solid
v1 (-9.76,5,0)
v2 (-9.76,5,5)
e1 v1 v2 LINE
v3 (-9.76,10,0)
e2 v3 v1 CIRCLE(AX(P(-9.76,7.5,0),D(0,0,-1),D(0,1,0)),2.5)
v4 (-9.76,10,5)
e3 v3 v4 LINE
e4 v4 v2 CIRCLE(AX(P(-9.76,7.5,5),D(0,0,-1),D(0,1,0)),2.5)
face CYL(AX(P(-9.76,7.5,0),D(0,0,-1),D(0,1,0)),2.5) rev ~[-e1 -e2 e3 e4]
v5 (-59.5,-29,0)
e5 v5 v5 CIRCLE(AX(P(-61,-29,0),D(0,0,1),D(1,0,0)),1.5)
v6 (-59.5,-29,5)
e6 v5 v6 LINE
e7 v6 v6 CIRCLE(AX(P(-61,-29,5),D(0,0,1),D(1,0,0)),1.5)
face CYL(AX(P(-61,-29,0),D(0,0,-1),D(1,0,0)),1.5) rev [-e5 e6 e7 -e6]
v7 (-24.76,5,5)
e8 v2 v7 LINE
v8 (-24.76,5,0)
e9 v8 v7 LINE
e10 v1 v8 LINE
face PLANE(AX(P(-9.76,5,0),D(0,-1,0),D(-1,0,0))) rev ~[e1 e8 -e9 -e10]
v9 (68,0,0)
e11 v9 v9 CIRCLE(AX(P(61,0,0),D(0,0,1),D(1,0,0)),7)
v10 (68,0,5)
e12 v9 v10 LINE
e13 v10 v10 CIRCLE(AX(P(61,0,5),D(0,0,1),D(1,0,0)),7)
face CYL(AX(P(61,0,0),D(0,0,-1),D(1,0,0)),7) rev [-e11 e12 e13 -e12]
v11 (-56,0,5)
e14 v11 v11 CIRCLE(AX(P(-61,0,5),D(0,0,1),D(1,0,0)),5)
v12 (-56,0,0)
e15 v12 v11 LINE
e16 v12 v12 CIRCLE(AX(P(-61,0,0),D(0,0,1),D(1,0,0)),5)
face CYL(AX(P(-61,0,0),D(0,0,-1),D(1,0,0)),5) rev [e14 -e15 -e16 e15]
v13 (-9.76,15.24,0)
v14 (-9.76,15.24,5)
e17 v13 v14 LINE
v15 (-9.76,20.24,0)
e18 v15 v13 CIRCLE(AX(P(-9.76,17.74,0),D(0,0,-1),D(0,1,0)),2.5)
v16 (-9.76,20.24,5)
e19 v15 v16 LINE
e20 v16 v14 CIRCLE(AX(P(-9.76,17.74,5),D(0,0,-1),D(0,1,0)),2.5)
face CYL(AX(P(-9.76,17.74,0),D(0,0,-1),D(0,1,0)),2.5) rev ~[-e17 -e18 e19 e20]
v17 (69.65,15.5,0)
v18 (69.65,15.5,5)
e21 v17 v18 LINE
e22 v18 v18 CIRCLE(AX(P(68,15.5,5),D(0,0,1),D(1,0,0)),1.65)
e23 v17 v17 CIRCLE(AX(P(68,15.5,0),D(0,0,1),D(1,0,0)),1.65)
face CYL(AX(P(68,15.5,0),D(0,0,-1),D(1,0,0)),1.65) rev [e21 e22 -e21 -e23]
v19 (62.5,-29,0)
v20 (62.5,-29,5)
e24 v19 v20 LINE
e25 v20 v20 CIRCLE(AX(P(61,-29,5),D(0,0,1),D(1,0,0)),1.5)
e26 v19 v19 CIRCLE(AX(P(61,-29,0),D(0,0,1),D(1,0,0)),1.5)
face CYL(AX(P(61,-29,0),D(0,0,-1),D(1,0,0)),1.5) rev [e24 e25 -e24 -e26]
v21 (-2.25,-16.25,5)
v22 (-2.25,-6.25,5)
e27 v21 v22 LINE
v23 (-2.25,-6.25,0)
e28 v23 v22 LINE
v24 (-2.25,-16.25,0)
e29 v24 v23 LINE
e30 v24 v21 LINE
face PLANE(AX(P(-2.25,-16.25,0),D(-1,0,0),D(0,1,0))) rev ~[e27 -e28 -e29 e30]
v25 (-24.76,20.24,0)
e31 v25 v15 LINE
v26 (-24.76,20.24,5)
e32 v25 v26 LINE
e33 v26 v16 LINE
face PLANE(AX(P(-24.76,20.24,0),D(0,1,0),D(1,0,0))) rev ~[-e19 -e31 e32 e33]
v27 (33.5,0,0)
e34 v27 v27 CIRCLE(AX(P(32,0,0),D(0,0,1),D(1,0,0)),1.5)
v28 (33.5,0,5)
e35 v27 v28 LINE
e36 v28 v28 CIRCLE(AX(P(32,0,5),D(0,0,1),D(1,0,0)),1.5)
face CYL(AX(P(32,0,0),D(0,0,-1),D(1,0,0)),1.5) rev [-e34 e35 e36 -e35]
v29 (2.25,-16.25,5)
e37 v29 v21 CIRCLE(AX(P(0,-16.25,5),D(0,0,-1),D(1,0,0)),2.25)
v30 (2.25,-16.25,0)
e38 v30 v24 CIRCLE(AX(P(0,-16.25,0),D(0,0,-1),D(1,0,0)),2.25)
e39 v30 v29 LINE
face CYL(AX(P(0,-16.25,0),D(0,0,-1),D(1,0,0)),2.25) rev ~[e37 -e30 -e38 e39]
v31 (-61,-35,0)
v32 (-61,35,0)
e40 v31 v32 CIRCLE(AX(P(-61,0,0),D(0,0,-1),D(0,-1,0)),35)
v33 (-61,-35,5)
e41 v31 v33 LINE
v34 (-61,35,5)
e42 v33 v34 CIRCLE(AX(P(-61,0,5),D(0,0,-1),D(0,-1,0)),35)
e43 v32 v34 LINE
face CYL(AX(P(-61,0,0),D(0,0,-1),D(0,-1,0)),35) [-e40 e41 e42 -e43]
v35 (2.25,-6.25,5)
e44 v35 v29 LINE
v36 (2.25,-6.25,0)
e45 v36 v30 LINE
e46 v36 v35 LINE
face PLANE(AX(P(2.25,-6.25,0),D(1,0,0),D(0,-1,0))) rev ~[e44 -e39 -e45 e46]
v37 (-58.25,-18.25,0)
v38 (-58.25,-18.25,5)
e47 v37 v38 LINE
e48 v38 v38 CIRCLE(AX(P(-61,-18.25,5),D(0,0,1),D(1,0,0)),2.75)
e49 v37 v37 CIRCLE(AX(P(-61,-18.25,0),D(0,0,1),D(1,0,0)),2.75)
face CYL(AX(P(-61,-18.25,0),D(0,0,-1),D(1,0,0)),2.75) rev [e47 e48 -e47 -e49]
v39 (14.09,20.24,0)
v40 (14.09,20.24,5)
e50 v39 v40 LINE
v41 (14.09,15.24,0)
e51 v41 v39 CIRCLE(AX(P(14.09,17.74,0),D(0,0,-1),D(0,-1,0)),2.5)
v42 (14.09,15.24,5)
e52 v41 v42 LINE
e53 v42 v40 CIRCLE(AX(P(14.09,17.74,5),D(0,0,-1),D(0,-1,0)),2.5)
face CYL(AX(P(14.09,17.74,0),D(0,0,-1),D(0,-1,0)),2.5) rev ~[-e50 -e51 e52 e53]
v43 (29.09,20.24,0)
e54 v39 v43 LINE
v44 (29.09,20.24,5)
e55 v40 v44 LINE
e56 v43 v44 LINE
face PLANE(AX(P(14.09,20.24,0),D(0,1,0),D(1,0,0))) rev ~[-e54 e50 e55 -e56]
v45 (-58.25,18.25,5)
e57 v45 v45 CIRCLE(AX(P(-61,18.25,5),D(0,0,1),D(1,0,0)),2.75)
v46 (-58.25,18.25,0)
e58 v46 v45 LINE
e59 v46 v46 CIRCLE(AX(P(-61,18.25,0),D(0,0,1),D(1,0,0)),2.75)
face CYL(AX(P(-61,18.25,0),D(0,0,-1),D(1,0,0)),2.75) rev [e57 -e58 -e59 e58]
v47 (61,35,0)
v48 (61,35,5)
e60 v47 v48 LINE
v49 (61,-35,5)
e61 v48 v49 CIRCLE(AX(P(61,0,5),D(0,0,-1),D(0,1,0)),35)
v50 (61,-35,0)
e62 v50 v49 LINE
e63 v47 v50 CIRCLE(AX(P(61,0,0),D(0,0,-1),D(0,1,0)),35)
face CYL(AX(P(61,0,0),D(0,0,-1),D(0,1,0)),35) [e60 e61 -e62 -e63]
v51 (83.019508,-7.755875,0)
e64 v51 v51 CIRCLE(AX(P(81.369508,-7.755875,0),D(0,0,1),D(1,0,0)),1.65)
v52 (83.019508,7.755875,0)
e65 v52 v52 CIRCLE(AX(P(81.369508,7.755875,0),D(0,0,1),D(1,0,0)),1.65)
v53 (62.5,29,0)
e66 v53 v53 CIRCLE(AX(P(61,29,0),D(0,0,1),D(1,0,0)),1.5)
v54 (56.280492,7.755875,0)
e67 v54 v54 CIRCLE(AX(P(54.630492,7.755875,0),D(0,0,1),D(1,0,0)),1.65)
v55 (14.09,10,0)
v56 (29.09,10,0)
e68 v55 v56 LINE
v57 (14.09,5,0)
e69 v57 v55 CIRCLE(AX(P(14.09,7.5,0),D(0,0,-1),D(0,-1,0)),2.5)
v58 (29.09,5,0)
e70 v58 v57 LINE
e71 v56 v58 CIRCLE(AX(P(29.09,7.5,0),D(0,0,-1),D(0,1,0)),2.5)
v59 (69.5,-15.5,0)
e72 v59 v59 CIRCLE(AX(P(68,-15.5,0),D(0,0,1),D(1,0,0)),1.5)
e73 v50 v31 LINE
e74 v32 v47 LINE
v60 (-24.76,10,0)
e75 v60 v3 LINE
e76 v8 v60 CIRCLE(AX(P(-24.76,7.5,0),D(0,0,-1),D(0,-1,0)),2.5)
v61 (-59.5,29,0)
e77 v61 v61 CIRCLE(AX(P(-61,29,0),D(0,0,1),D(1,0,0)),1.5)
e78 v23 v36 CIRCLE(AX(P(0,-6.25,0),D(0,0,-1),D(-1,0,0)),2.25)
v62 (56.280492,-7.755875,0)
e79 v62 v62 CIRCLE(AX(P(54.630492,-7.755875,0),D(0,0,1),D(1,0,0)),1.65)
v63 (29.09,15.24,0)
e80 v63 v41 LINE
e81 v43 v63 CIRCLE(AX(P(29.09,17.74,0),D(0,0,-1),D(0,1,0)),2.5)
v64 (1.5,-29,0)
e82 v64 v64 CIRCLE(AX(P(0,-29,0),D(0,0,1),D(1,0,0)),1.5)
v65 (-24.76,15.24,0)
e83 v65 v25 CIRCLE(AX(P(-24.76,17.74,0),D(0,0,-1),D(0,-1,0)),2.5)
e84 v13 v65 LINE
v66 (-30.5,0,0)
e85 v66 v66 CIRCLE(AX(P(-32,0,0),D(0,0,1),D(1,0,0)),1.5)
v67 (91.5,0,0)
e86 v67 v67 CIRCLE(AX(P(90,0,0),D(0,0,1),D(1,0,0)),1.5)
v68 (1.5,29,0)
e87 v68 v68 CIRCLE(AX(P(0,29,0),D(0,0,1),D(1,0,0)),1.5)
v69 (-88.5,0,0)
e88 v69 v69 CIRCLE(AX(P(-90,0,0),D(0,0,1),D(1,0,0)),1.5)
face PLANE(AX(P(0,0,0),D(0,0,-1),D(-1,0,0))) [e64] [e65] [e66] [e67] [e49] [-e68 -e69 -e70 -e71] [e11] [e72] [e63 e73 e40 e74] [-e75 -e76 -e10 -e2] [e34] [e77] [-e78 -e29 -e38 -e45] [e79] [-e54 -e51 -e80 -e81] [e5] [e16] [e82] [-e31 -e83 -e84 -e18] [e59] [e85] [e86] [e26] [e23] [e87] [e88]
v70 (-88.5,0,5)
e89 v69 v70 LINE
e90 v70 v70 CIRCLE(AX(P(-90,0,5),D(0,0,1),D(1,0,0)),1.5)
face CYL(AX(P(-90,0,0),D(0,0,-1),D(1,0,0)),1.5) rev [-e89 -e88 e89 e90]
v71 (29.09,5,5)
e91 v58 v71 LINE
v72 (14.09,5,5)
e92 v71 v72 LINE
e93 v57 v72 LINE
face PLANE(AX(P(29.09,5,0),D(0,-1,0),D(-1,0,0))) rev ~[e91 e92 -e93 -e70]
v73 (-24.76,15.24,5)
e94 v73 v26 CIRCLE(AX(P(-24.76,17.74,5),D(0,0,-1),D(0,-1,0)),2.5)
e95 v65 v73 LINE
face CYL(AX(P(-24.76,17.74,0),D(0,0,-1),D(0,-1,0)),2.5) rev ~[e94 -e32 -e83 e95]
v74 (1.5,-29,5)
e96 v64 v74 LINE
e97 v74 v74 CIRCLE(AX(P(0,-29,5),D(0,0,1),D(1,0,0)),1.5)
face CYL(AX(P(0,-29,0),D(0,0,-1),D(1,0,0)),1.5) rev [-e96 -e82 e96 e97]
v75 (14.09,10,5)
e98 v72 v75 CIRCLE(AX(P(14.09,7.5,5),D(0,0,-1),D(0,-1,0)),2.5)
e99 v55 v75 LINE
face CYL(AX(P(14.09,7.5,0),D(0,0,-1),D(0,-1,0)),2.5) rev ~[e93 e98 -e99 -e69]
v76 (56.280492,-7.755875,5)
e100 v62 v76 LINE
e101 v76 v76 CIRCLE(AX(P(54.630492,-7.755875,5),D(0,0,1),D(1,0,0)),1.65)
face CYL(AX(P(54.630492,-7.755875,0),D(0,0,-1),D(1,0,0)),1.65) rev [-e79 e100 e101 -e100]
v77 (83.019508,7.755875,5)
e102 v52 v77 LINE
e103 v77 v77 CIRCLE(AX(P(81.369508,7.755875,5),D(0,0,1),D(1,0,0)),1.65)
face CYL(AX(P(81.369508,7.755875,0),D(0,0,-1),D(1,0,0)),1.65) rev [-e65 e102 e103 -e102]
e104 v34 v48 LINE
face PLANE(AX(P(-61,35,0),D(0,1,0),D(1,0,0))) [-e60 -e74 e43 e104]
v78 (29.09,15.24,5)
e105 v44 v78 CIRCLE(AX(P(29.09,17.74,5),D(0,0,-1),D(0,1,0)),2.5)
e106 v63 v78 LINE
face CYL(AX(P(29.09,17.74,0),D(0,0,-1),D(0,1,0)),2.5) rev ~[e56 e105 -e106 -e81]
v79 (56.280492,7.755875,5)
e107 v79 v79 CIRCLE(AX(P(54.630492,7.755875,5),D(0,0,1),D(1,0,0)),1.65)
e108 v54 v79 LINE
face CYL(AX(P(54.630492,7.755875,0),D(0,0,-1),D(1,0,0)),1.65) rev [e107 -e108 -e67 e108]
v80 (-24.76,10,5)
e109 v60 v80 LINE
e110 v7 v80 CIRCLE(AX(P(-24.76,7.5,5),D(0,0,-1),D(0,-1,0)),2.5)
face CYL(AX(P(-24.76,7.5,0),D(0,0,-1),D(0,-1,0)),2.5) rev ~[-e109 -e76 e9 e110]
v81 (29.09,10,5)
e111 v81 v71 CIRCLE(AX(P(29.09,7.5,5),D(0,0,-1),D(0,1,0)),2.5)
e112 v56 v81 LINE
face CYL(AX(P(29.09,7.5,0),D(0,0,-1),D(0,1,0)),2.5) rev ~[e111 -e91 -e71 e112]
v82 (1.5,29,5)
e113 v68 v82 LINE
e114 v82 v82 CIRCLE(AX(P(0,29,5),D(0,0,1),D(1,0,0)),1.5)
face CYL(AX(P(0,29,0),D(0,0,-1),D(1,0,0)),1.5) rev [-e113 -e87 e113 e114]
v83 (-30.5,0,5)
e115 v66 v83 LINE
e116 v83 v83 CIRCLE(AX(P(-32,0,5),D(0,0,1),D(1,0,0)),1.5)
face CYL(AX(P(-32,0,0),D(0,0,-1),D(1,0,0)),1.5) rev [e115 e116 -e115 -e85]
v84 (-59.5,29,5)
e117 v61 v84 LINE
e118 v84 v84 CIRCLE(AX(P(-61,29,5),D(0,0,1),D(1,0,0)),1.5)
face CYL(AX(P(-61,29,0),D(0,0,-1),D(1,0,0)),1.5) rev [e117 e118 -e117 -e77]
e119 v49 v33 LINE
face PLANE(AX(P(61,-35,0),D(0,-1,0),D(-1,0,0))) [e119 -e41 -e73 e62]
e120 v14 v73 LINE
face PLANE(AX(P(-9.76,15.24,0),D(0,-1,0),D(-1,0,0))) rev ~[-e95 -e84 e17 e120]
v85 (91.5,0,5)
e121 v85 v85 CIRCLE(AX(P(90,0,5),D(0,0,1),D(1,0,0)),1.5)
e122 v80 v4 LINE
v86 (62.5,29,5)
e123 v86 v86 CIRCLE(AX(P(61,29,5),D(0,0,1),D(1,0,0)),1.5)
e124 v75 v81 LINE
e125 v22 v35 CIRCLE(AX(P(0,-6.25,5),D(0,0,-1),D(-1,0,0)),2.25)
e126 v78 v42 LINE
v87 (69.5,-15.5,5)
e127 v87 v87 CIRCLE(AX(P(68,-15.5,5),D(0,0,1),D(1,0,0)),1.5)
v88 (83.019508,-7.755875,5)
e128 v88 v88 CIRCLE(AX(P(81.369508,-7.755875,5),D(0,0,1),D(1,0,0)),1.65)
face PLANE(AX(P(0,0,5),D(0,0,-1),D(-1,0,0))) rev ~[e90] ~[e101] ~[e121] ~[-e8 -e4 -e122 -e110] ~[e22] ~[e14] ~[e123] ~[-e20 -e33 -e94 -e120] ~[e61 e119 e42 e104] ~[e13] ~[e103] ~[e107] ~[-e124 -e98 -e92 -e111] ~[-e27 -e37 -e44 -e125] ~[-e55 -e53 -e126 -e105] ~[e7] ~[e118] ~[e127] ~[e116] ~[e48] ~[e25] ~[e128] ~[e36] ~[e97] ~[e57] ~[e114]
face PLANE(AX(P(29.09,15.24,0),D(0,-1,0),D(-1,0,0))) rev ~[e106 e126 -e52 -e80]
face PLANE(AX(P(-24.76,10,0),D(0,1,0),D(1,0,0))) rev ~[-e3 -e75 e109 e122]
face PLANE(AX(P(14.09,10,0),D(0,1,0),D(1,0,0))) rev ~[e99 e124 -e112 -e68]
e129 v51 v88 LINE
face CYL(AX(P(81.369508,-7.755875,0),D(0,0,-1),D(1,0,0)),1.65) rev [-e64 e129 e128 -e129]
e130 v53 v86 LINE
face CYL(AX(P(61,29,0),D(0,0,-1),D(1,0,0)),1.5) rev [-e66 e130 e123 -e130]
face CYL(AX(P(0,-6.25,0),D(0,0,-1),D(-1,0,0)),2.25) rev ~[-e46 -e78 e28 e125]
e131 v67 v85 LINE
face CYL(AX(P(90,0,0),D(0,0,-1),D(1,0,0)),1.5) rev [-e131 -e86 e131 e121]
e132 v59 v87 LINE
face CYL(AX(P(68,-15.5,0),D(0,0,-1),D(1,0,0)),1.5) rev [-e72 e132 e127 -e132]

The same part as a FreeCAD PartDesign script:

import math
import FreeCAD as App
import Part
import Sketcher
from FreeCAD import Vector

doc = App.newDocument("Part")
body = doc.addObject("PartDesign::Body", "Body")

# Sketch on XY plane
sketch1 = body.newObject("Sketcher::SketchObject", "Sketch")
sketch1.AttachmentSupport = (doc.getObject("XY_Plane"), [""])
sketch1.MapMode = "FlatFace"
sketch1.addGeometry([
    Part.LineSegment(Vector(-61, -35, 0), Vector(61, -35, 0)),  # 0
    Part.ArcOfCircle(Part.Circle(Vector(61, 0, 0), Vector(0, 0, 1), 35), math.radians(-90), math.radians(90)),  # 1
    Part.LineSegment(Vector(61, 35, 0), Vector(-61, 35, 0)),  # 2
    Part.ArcOfCircle(Part.Circle(Vector(-61, 0, 0), Vector(0, 0, 1), 35), math.radians(90), math.radians(270)),  # 3
    Part.Circle(Vector(61, -29, 0), Vector(0, 0, 1), 1.5),  # 4
    Part.Circle(Vector(68, -15.5, 0), Vector(0, 0, 1), 1.5),  # 5
    Part.Circle(Vector(81.4, -7.8, 0), Vector(0, 0, 1), 1.6),  # 6
    Part.Circle(Vector(54.6, -7.8, 0), Vector(0, 0, 1), 1.6),  # 7
    Part.Circle(Vector(0, -29, 0), Vector(0, 0, 1), 1.5),  # 8
    Part.Circle(Vector(-61, -29, 0), Vector(0, 0, 1), 1.5),  # 9
    Part.Circle(Vector(-61, -18.2, 0), Vector(0, 0, 1), 2.8),  # 10
    Part.LineSegment(Vector(2.2, -6.2, 0), Vector(2.2, -16.2, 0)),  # 11
    Part.ArcOfCircle(Part.Circle(Vector(0, -16.2, 0), Vector(0, 0, 1), 2.2), math.radians(180), math.radians(360)),  # 12
    Part.LineSegment(Vector(-2.2, -16.2, 0), Vector(-2.2, -6.2, 0)),  # 13
    Part.ArcOfCircle(Part.Circle(Vector(0, -6.2, 0), Vector(0, 0, 1), 2.2), math.radians(0), math.radians(180)),  # 14
    Part.Circle(Vector(90, 0, 0), Vector(0, 0, 1), 1.5),  # 15
    Part.Circle(Vector(61, 0, 0), Vector(0, 0, 1), 7),  # 16
    Part.Circle(Vector(81.4, 7.8, 0), Vector(0, 0, 1), 1.6),  # 17
    Part.Circle(Vector(54.6, 7.8, 0), Vector(0, 0, 1), 1.6),  # 18
    Part.Circle(Vector(32, 0, 0), Vector(0, 0, 1), 1.5),  # 19
    Part.LineSegment(Vector(14.1, 10, 0), Vector(29.1, 10, 0)),  # 20
    Part.ArcOfCircle(Part.Circle(Vector(29.1, 7.5, 0), Vector(0, 0, 1), 2.5), math.radians(-90), math.radians(90)),  # 21
    Part.LineSegment(Vector(29.1, 5, 0), Vector(14.1, 5, 0)),  # 22
    Part.ArcOfCircle(Part.Circle(Vector(14.1, 7.5, 0), Vector(0, 0, 1), 2.5), math.radians(90), math.radians(270)),  # 23
    Part.Circle(Vector(68, 15.5, 0), Vector(0, 0, 1), 1.6),  # 24
    Part.Circle(Vector(61, 29, 0), Vector(0, 0, 1), 1.5),  # 25
    Part.LineSegment(Vector(14.1, 20.2, 0), Vector(29.1, 20.2, 0)),  # 26
    Part.ArcOfCircle(Part.Circle(Vector(29.1, 17.7, 0), Vector(0, 0, 1), 2.5), math.radians(-90), math.radians(90)),  # 27
    Part.LineSegment(Vector(29.1, 15.2, 0), Vector(14.1, 15.2, 0)),  # 28
    Part.ArcOfCircle(Part.Circle(Vector(14.1, 17.7, 0), Vector(0, 0, 1), 2.5), math.radians(90), math.radians(270)),  # 29
    Part.LineSegment(Vector(-24.8, 10, 0), Vector(-9.8, 10, 0)),  # 30
    Part.ArcOfCircle(Part.Circle(Vector(-9.8, 7.5, 0), Vector(0, 0, 1), 2.5), math.radians(-90), math.radians(90)),  # 31
    Part.LineSegment(Vector(-9.8, 5, 0), Vector(-24.8, 5, 0)),  # 32
    Part.ArcOfCircle(Part.Circle(Vector(-24.8, 7.5, 0), Vector(0, 0, 1), 2.5), math.radians(90), math.radians(270)),  # 33
    Part.Circle(Vector(-32, 0, 0), Vector(0, 0, 1), 1.5),  # 34
    Part.Circle(Vector(-61, 0, 0), Vector(0, 0, 1), 5),  # 35
    Part.Circle(Vector(-90, 0, 0), Vector(0, 0, 1), 1.5),  # 36
    Part.LineSegment(Vector(-24.8, 20.2, 0), Vector(-9.8, 20.2, 0)),  # 37
    Part.ArcOfCircle(Part.Circle(Vector(-9.8, 17.7, 0), Vector(0, 0, 1), 2.5), math.radians(-90), math.radians(90)),  # 38
    Part.LineSegment(Vector(-9.8, 15.2, 0), Vector(-24.8, 15.2, 0)),  # 39
    Part.ArcOfCircle(Part.Circle(Vector(-24.8, 17.7, 0), Vector(0, 0, 1), 2.5), math.radians(90), math.radians(270)),  # 40
    Part.Circle(Vector(0, 29, 0), Vector(0, 0, 1), 1.5),  # 41
    Part.Circle(Vector(-61, 18.2, 0), Vector(0, 0, 1), 2.8),  # 42
    Part.Circle(Vector(-61, 29, 0), Vector(0, 0, 1), 1.5),  # 43
], False)
sketch1.addConstraint([
    Sketcher.Constraint("Tangent", 0, 2, 1, 1),
    Sketcher.Constraint("Tangent", 1, 2, 2, 1),
    Sketcher.Constraint("Tangent", 2, 2, 3, 1),
    Sketcher.Constraint("Tangent", 3, 2, 0, 1),
    Sketcher.Constraint("Tangent", 11, 2, 12, 2),
    Sketcher.Constraint("Tangent", 12, 1, 13, 1),
    Sketcher.Constraint("Tangent", 13, 2, 14, 2),
    Sketcher.Constraint("Tangent", 14, 1, 11, 1),
    Sketcher.Constraint("Tangent", 20, 2, 21, 2),
    Sketcher.Constraint("Tangent", 21, 1, 22, 1),
    Sketcher.Constraint("Tangent", 22, 2, 23, 2),
    Sketcher.Constraint("Tangent", 23, 1, 20, 1),
    Sketcher.Constraint("Tangent", 26, 2, 27, 2),
    Sketcher.Constraint("Tangent", 27, 1, 28, 1),
    Sketcher.Constraint("Tangent", 28, 2, 29, 2),
    Sketcher.Constraint("Tangent", 29, 1, 26, 1),
    Sketcher.Constraint("Tangent", 30, 2, 31, 2),
    Sketcher.Constraint("Tangent", 31, 1, 32, 1),
    Sketcher.Constraint("Tangent", 32, 2, 33, 2),
    Sketcher.Constraint("Tangent", 33, 1, 30, 1),
    Sketcher.Constraint("Tangent", 37, 2, 38, 2),
    Sketcher.Constraint("Tangent", 38, 1, 39, 1),
    Sketcher.Constraint("Tangent", 39, 2, 40, 2),
    Sketcher.Constraint("Tangent", 40, 1, 37, 1),
    Sketcher.Constraint("Horizontal", 0),
    Sketcher.Constraint("Horizontal", 2),
    Sketcher.Constraint("Vertical", 11),
    Sketcher.Constraint("Vertical", 13),
    Sketcher.Constraint("Horizontal", 20),
    Sketcher.Constraint("Horizontal", 22),
    Sketcher.Constraint("Horizontal", 26),
    Sketcher.Constraint("Horizontal", 28),
    Sketcher.Constraint("Horizontal", 30),
    Sketcher.Constraint("Horizontal", 32),
    Sketcher.Constraint("Horizontal", 37),
    Sketcher.Constraint("Horizontal", 39),
    Sketcher.Constraint("Coincident", 16, 3, 1, 3),
    Sketcher.Constraint("Coincident", 35, 3, 3, 3),
    Sketcher.Constraint("Equal", 4, 5),
    Sketcher.Constraint("Equal", 6, 7),
    Sketcher.Constraint("Equal", 5, 8),
    Sketcher.Constraint("Equal", 8, 9),
    Sketcher.Constraint("Equal", 9, 15),
    Sketcher.Constraint("Equal", 7, 17),
    Sketcher.Constraint("Equal", 17, 18),
    Sketcher.Constraint("Equal", 15, 19),
    Sketcher.Constraint("Equal", 18, 24),
    Sketcher.Constraint("Equal", 19, 25),
    Sketcher.Constraint("Equal", 23, 27),
    Sketcher.Constraint("Equal", 29, 31),
    Sketcher.Constraint("Equal", 25, 34),
    Sketcher.Constraint("Equal", 34, 36),
    Sketcher.Constraint("Equal", 33, 38),
    Sketcher.Constraint("Equal", 36, 41),
    Sketcher.Constraint("Equal", 10, 42),
    Sketcher.Constraint("Equal", 41, 43),
    Sketcher.Constraint("Symmetric", 1, 3, 3, 3, -1, 1),
    Sketcher.Constraint("Symmetric", 9, 3, 25, 3, -1, 1),
    Sketcher.Constraint("Symmetric", 19, 3, 34, 3, -1, 1),
    Sketcher.Constraint("Symmetric", 15, 3, 36, 3, -1, 1),
    Sketcher.Constraint("Symmetric", 8, 3, 41, 3, -1, 1),
    Sketcher.Constraint("Symmetric", 4, 3, 43, 3, -1, 1),
    Sketcher.Constraint("Symmetric", 4, 3, 9, 3, -2),
    Sketcher.Constraint("Symmetric", 6, 3, 17, 3, -1),
    Sketcher.Constraint("Symmetric", 7, 3, 18, 3, -1),
    Sketcher.Constraint("Symmetric", 5, 3, 24, 3, -1),
    Sketcher.Constraint("Symmetric", 10, 3, 42, 3, -1),
    Sketcher.Constraint("PointOnObject", 8, 3, -2),
    Sketcher.Constraint("PointOnObject", 12, 3, -2),
    Sketcher.Constraint("PointOnObject", 15, 3, -1),
    Sketcher.Constraint("PointOnObject", 19, 3, -1),
    Sketcher.Constraint("Horizontal", 6, 3, 7, 3),
    Sketcher.Constraint("Horizontal", 4, 3, 8, 3),
    Sketcher.Constraint("Horizontal", 23, 3, 31, 3),
    Sketcher.Constraint("Horizontal", 29, 3, 38, 3),
    Sketcher.Constraint("Vertical", 1, 3, 4, 3),
    Sketcher.Constraint("Vertical", 9, 3, 10, 3),
    Sketcher.Constraint("Vertical", 21, 3, 27, 3),
    Sketcher.Constraint("Vertical", 23, 3, 29, 3),
    Sketcher.Constraint("Vertical", 31, 3, 38, 3),
    Sketcher.Constraint("Vertical", 33, 3, 40, 3),
    Sketcher.Constraint("Equal", 28, 30),
    Sketcher.Constraint("Diameter", 4, 3.0),
    Sketcher.Constraint("Diameter", 16, 14.0),
    Sketcher.Constraint("Diameter", 35, 10.0),
    Sketcher.Constraint("Radius", 1, 35.0),
    Sketcher.Constraint("Diameter", 6, 3.3),
    Sketcher.Constraint("Diameter", 10, 5.5),
    Sketcher.Constraint("Radius", 21, 2.5),
    Sketcher.Constraint("DistanceX", 0, 1, 0, 2, 122.0),
    Sketcher.Constraint("DistanceX", 20, 1, 20, 2, 15.0),
    Sketcher.Constraint("DistanceY", 11, 2, 11, 1, 10.0),
    Sketcher.Constraint("Radius", 12, 2.25),
    Sketcher.Constraint("DistanceY", 4, 3, -1, 1, 29.0),
    Sketcher.Constraint("DistanceX", -1, 1, 5, 3, 68.0),
    Sketcher.Constraint("DistanceX", -1, 1, 15, 3, 90.0),
    Sketcher.Constraint("DistanceX", -1, 1, 19, 3, 32.0),
    Sketcher.Constraint("DistanceY", -1, 1, 20, 2, 10.0),
    Sketcher.Constraint("DistanceY", 10, 3, 12, 3, 2.0),
    Sketcher.Constraint("DistanceY", 5, 3, -1, 1, 15.5),
    Sketcher.Constraint("DistanceY", 10, 3, -1, 1, 18.25),
    Sketcher.Constraint("DistanceX", -1, 1, 21, 3, 29.09),
    Sketcher.Constraint("DistanceY", -1, 1, 27, 3, 17.74),
    Sketcher.Constraint("DistanceX", 31, 3, -1, 1, 9.76),
    Sketcher.Constraint("DistanceX", -1, 1, 6, 3, 81.369508),
    Sketcher.Constraint("DistanceX", -1, 1, 7, 3, 54.630492),
    Sketcher.Constraint("DistanceY", 6, 3, 17, 3, 15.51175),
])
pad1 = body.newObject("PartDesign::Pad", "Pad")
pad1.Profile = sketch1
pad1.Length = 5

doc.recompute()
